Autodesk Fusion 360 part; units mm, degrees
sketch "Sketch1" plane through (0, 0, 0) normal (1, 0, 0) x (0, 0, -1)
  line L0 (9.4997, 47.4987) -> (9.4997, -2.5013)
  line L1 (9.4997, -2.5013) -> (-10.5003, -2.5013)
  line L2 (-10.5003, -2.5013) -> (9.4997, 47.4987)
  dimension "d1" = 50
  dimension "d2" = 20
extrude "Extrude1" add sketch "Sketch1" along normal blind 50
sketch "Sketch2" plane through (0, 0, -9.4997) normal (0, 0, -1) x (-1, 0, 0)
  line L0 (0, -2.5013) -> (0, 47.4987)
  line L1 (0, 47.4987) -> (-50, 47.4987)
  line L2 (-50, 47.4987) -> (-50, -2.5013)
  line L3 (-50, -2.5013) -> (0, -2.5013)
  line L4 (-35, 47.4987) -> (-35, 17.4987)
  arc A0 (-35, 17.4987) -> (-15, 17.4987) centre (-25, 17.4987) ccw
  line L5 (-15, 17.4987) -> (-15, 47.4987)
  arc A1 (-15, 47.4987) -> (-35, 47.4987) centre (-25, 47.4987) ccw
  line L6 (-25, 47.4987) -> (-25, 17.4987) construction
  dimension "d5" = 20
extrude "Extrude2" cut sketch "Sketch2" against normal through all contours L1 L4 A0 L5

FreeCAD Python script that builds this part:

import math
import FreeCAD as App
import Part
import Sketcher
from FreeCAD import Vector

doc = App.newDocument("Part")
params = doc.addObject("Spreadsheet::Sheet", "Params")
for row, (alias, value) in enumerate([
    ("sketch1_width", "50 mm"),
    ("sketch1_height", "20 mm"),
    ("pad1_length", "50 mm"),
    ("sketch2_radius", "10 mm"),
    ("sketch2_height", "30 mm"),
], start=1):
    params.set(f"A{row}", alias)
    params.set(f"B{row}", "=" + value)
    params.setAlias(f"B{row}", alias)

body = doc.addObject("PartDesign::Body", "Body")

sketch1 = doc.addObject("Sketcher::SketchObject", "Sketch")
body.addObject(sketch1)
sketch1.AttachmentSupport = (doc.YZ_Plane, [""])
sketch1.MapMode = "FlatFace"
sketch1.addGeometry([
    Part.LineSegment(Vector(-3, -9, 0), Vector(47, -9, 0)),
    Part.LineSegment(Vector(47, -9, 0), Vector(-3, 11, 0)),
    Part.LineSegment(Vector(-3, 11, 0), Vector(-3, -9, 0)),
], False)
sketch1.addConstraint([
    Sketcher.Constraint("Coincident", 0, 2, 1, 1),
    Sketcher.Constraint("Coincident", 1, 2, 2, 1),
    Sketcher.Constraint("Coincident", 2, 2, 0, 1),
    Sketcher.Constraint("Horizontal", 0),
    Sketcher.Constraint("Vertical", 2),
    Sketcher.Constraint("DistanceX", 0, 1, 0, 2, 50.0),
    Sketcher.Constraint("DistanceY", 2, 2, 2, 1, 20.0),
    Sketcher.Constraint("DistanceX", -1, 1, 0, 2, 47.4987),
    Sketcher.Constraint("DistanceY", 0, 2, -1, 1, 9.4997),
])
sketch1.setExpression("Constraints[5]", "Params.sketch1_width")
sketch1.setExpression("Constraints[6]", "Params.sketch1_height")
pad1 = doc.addObject("PartDesign::Pad", "Pad")
body.addObject(pad1)
pad1.Profile = sketch1
pad1.setExpression("Length", "Params.pad1_length")

sketch2 = doc.addObject("Sketcher::SketchObject", "Sketch001")
body.addObject(sketch2)
sketch2.AttachmentSupport = (doc.XY_Plane, [""])
sketch2.MapMode = "FlatFace"
sketch2.AttachmentOffset = App.Placement(Vector(0, 0, -9.4997), App.Rotation())
sketch2.addGeometry([
    Part.LineSegment(Vector(15, 17, 0), Vector(15, 47, 0)),
    Part.LineSegment(Vector(15, 47, 0), Vector(35, 47, 0)),
    Part.LineSegment(Vector(35, 47, 0), Vector(35, 17, 0)),
    Part.ArcOfCircle(Part.Circle(Vector(25, 17, 0), Vector(0, 0, 1), 10), math.radians(180), math.radians(360)),
], False)
sketch2.addConstraint([
    Sketcher.Constraint("Coincident", 0, 2, 1, 1),
    Sketcher.Constraint("Coincident", 1, 2, 2, 1),
    Sketcher.Constraint("Tangent", 2, 2, 3, 2),
    Sketcher.Constraint("Tangent", 3, 1, 0, 1),
    Sketcher.Constraint("Vertical", 0),
    Sketcher.Constraint("Horizontal", 1),
    Sketcher.Constraint("Vertical", 2),
    Sketcher.Constraint("Radius", 3, 10.0),
    Sketcher.Constraint("DistanceY", 0, 1, 0, 2, 30.0),
    Sketcher.Constraint("DistanceX", -1, 1, 3, 3, 25.0),
    Sketcher.Constraint("DistanceY", -1, 1, 3, 3, 17.4987),
])
sketch2.setExpression("Constraints[7]", "Params.sketch2_radius")
sketch2.setExpression("Constraints[8]", "Params.sketch2_height")
pocket1 = doc.addObject("PartDesign::Pocket", "Pocket")
body.addObject(pocket1)
pocket1.Profile = sketch2
pocket1.Type = "ThroughAll"
pocket1.Reversed = True

doc.recompute()
